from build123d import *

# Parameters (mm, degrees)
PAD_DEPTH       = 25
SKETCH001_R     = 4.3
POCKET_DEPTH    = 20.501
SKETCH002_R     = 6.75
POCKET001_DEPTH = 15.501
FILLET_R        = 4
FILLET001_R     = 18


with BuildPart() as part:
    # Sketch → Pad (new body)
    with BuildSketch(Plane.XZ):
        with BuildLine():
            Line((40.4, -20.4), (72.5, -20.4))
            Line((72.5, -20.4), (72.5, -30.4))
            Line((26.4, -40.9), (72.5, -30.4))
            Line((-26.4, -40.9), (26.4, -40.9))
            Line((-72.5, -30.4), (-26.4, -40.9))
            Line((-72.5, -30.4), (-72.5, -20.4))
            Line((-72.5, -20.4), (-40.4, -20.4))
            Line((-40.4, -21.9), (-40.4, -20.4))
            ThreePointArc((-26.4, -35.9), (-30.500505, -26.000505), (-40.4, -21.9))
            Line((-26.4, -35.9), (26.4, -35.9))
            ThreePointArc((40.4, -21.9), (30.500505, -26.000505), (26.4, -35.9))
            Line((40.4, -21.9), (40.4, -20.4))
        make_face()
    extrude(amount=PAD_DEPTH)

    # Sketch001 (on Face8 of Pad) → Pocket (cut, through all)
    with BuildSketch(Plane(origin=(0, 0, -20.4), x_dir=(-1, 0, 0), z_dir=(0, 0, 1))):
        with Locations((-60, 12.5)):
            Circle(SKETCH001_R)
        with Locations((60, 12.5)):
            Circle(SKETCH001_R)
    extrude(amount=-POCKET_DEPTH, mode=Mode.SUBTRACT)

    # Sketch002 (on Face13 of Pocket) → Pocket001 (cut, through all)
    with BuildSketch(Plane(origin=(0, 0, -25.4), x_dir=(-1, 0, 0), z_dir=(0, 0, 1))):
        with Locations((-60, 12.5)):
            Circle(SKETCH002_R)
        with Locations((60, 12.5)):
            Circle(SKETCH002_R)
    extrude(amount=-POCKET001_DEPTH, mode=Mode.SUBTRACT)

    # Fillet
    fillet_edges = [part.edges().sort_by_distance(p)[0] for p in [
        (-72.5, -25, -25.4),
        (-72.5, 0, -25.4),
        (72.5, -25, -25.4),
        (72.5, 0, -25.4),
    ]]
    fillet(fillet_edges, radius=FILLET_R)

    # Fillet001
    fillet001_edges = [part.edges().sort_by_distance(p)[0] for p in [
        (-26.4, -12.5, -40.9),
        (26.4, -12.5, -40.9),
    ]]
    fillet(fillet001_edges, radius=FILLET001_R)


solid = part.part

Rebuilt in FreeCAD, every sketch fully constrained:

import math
import FreeCAD as App
import Part
import Sketcher
from FreeCAD import Vector
Q = App.Units.Quantity


def edges_at(feature, points):
    """Names of the edges that pass closest to the given points."""
    edges = feature.Shape.Edges
    near = lambda p: min(range(len(edges)), key=lambda i: edges[i].distToShape(Part.Vertex(*p))[0])
    return sorted({f"Edge{near(p) + 1}" for p in points})

doc = App.newDocument("Part")
body = doc.addObject("PartDesign::Body", "Body")

# Sketch on XZ plane
sketch1 = body.newObject("Sketcher::SketchObject", "Sketch")
sketch1.AttachmentSupport = (doc.getObject("XZ_Plane"), [""])
sketch1.MapMode = "FlatFace"
sketch1.addGeometry([
    Part.LineSegment(Vector(72.5, -20.4, 0), Vector(40.4, -20.4, 0)),  # 0
    Part.LineSegment(Vector(40.4, -20.4, 0), Vector(40.4, -21.9, 0)),  # 1
    Part.ArcOfCircle(Part.Circle(Vector(40.4, -35.9, 0), Vector(0, 0, 1), 14), math.radians(90), math.radians(180)),  # 2
    Part.LineSegment(Vector(26.4, -35.9, 0), Vector(-26.4, -35.9, 0)),  # 3
    Part.ArcOfCircle(Part.Circle(Vector(-40.4, -35.9, 0), Vector(0, 0, 1), 14), math.radians(0), math.radians(90)),  # 4
    Part.LineSegment(Vector(-40.4, -21.9, 0), Vector(-40.4, -20.4, 0)),  # 5
    Part.LineSegment(Vector(-40.4, -20.4, 0), Vector(-72.5, -20.4, 0)),  # 6
    Part.LineSegment(Vector(-72.5, -20.4, 0), Vector(-72.5, -30.4, 0)),  # 7
    Part.LineSegment(Vector(-72.5, -30.4, 0), Vector(-26.4, -40.9, 0)),  # 8
    Part.LineSegment(Vector(-26.4, -40.9, 0), Vector(26.4, -40.9, 0)),  # 9
    Part.LineSegment(Vector(26.4, -40.9, 0), Vector(72.5, -30.4, 0)),  # 10
    Part.LineSegment(Vector(72.5, -30.4, 0), Vector(72.5, -20.4, 0)),  # 11
], False)
sketch1.addConstraint([
    Sketcher.Constraint("Coincident", 0, 2, 1, 1),
    Sketcher.Constraint("Coincident", 1, 2, 2, 1),
    Sketcher.Constraint("Coincident", 2, 2, 3, 1),
    Sketcher.Constraint("Coincident", 3, 2, 4, 1),
    Sketcher.Constraint("Coincident", 4, 2, 5, 1),
    Sketcher.Constraint("Coincident", 5, 2, 6, 1),
    Sketcher.Constraint("Coincident", 6, 2, 7, 1),
    Sketcher.Constraint("Coincident", 7, 2, 8, 1),
    Sketcher.Constraint("Coincident", 8, 2, 9, 1),
    Sketcher.Constraint("Coincident", 9, 2, 10, 1),
    Sketcher.Constraint("Coincident", 10, 2, 11, 1),
    Sketcher.Constraint("Coincident", 11, 2, 0, 1),
    Sketcher.Constraint("Horizontal", 0),
    Sketcher.Constraint("Vertical", 1),
    Sketcher.Constraint("Horizontal", 3),
    Sketcher.Constraint("Vertical", 5),
    Sketcher.Constraint("Horizontal", 6),
    Sketcher.Constraint("Vertical", 7),
    Sketcher.Constraint("Horizontal", 9),
    Sketcher.Constraint("Vertical", 11),
    Sketcher.Constraint("Equal", 2, 4),
    Sketcher.Constraint("Symmetric", 2, 3, 4, 3, -2),
    Sketcher.Constraint("Symmetric", 0, 2, 5, 2, -2),
    Sketcher.Constraint("Symmetric", 7, 2, 10, 2, -2),
    Sketcher.Constraint("Horizontal", 4, 3, 2, 2),
    Sketcher.Constraint("Vertical", 2, 3, 0, 2),
    Sketcher.Constraint("Vertical", 3, 2, 8, 2),
    Sketcher.Constraint("Vertical", 2, 2, 9, 2),
    Sketcher.Constraint("Radius", 2, Q("14 mm")),
    Sketcher.Constraint("DistanceY", 7, 2, 7, 1, Q("10 mm")),
    Sketcher.Constraint("DistanceX", 0, 2, 0, 1, Q("32.1 mm")),
    Sketcher.Constraint("DistanceX", 3, 2, 3, 1, Q("52.8 mm")),
    Sketcher.Constraint("DistanceY", 1, 2, 1, 1, Q("1.5 mm")),
    Sketcher.Constraint("DistanceY", 8, 2, 3, 2, Q("5 mm")),
    Sketcher.Constraint("DistanceY", 2, 3, -1, 1, Q("35.9 mm")),
])
pad1 = body.newObject("PartDesign::Pad", "Pad")
pad1.Profile = sketch1
pad1.Length = 25

# Sketch on XY plane
sketch2 = body.newObject("Sketcher::SketchObject", "Sketch001")
sketch2.AttachmentSupport = (doc.getObject("XY_Plane"), [""])
sketch2.MapMode = "FlatFace"
sketch2.AttachmentOffset = App.Placement(Vector(0, 0, -20.4), App.Rotation())
sketch2.addGeometry([
    Part.Circle(Vector(60, -12.5, 0), Vector(0, 0, 1), 4.3),
    Part.Circle(Vector(-60, -12.5, 0), Vector(0, 0, 1), 4.3),
], False)
sketch2.addConstraint([
    Sketcher.Constraint("Equal", 0, 1),
    Sketcher.Constraint("Symmetric", 0, 3, 1, 3, -2),
    Sketcher.Constraint("Diameter", 0, Q("8.6 mm")),
    Sketcher.Constraint("DistanceX", -1, 1, 0, 3, Q("60 mm")),
    Sketcher.Constraint("DistanceY", 0, 3, -1, 1, Q("12.5 mm")),
])
pocket1 = body.newObject("PartDesign::Pocket", "Pocket")
pocket1.Profile = sketch2
pocket1.Type = "ThroughAll"

# Sketch on XY plane
sketch3 = body.newObject("Sketcher::SketchObject", "Sketch002")
sketch3.AttachmentSupport = (doc.getObject("XY_Plane"), [""])
sketch3.MapMode = "FlatFace"
sketch3.AttachmentOffset = App.Placement(Vector(0, 0, -25.4), App.Rotation())
sketch3.addGeometry([
    Part.Circle(Vector(60, -12, 0), Vector(0, 0, 1), 7),
    Part.Circle(Vector(-60, -12, 0), Vector(0, 0, 1), 7),
], False)
sketch3.addConstraint([
    Sketcher.Constraint("Equal", 0, 1),
    Sketcher.Constraint("Symmetric", 0, 3, 1, 3, -2),
    Sketcher.Constraint("Diameter", 0, Q("13.5 mm")),
    Sketcher.Constraint("DistanceX", -1, 1, 0, 3, Q("60 mm")),
    Sketcher.Constraint("DistanceY", 0, 3, -1, 1, Q("12.5 mm")),
])
pocket2 = body.newObject("PartDesign::Pocket", "Pocket001")
pocket2.Profile = sketch3
pocket2.Type = "ThroughAll"
doc.recompute()

fillet = body.newObject("PartDesign::Fillet", "Fillet")
fillet.Base = (pocket2, edges_at(pocket2, [
    (-72.5, -25, -25.4),
    (-72.5, 0, -25.4),
    (72.5, -25, -25.4),
    (72.5, 0, -25.4),
]))
fillet.Radius = 4
doc.recompute()

fillet2 = body.newObject("PartDesign::Fillet", "Fillet001")
fillet2.Base = (fillet, edges_at(fillet, [(-26.4, -12.5, -40.9), (26.4, -12.5, -40.9)]))
fillet2.Radius = 18

doc.recompute()
